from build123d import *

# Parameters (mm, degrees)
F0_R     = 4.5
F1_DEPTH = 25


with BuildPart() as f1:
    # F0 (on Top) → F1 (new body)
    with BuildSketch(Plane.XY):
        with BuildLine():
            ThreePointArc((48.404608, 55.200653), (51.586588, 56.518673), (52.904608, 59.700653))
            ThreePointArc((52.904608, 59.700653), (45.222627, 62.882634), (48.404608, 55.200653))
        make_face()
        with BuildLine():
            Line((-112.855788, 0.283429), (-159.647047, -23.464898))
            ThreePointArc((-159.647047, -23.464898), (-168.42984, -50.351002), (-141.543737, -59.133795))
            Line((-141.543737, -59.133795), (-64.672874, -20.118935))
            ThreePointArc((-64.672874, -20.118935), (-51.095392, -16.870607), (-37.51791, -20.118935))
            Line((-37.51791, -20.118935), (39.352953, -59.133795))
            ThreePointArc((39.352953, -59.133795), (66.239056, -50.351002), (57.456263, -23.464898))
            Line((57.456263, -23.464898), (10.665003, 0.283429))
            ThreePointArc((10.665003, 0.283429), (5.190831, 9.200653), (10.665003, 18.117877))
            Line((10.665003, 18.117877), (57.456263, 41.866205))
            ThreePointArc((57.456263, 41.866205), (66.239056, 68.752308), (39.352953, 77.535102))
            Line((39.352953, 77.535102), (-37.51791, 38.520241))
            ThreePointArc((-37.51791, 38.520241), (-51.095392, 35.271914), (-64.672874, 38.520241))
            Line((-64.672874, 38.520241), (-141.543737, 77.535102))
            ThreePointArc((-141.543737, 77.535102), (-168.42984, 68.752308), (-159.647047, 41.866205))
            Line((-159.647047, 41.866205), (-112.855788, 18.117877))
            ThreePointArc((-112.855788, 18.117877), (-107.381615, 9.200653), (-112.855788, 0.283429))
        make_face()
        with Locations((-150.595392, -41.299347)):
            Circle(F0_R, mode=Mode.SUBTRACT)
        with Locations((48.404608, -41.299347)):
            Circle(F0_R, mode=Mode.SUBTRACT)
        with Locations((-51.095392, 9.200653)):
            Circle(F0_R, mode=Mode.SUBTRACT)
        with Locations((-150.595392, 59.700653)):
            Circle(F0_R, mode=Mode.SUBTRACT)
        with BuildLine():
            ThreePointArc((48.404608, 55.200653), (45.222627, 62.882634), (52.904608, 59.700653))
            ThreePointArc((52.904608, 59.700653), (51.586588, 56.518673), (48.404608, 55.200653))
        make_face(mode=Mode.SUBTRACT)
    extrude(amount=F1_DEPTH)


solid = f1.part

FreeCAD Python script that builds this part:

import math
import FreeCAD as App
import Part
import Sketcher
from FreeCAD import Vector
Q = App.Units.Quantity

doc = App.newDocument("Part")
body = doc.addObject("PartDesign::Body", "Body")

sketch1 = body.newObject("Sketcher::SketchObject", "Sketch")
sketch1.AttachmentSupport = (doc.getObject("XY_Plane"), [""])
sketch1.MapMode = "FlatFace"
sketch1.addGeometry([
    Part.LineSegment(Vector(-112.9, 0.3, 0), Vector(-159.6, -23.5, 0)),
    Part.ArcOfCircle(Part.Circle(Vector(-150.6, -41.3, 0), Vector(0, 0, 1), 20), math.radians(117), math.radians(297)),
    Part.LineSegment(Vector(-141.5, -59.1, 0), Vector(-64.7, -20.1, 0)),
    Part.ArcOfCircle(Part.Circle(Vector(-51.1, -46.9, 0), Vector(0, 0, 1), 30), math.radians(63), math.radians(117)),
    Part.LineSegment(Vector(-37.5, -20.1, 0), Vector(39.4, -59.1, 0)),
    Part.ArcOfCircle(Part.Circle(Vector(48.4, -41.3, 0), Vector(0, 0, 1), 20), math.radians(-117), math.radians(63)),
    Part.LineSegment(Vector(57.5, -23.5, 0), Vector(10.7, 0.3, 0)),
    Part.ArcOfCircle(Part.Circle(Vector(15.2, 9.2, 0), Vector(0, 0, 1), 10), math.radians(117), math.radians(243)),
    Part.LineSegment(Vector(10.7, 18.1, 0), Vector(57.5, 41.9, 0)),
    Part.ArcOfCircle(Part.Circle(Vector(48.4, 59.7, 0), Vector(0, 0, 1), 20), math.radians(-63), math.radians(117)),
    Part.LineSegment(Vector(39.4, 77.5, 0), Vector(-37.5, 38.5, 0)),
    Part.ArcOfCircle(Part.Circle(Vector(-51.1, 65.3, 0), Vector(0, 0, 1), 30), math.radians(-117), math.radians(-63)),
    Part.LineSegment(Vector(-64.7, 38.5, 0), Vector(-141.5, 77.5, 0)),
    Part.ArcOfCircle(Part.Circle(Vector(-150.6, 59.7, 0), Vector(0, 0, 1), 20), math.radians(63), math.radians(243)),
    Part.LineSegment(Vector(-159.6, 41.9, 0), Vector(-112.9, 18.1, 0)),
    Part.ArcOfCircle(Part.Circle(Vector(-117.4, 9.2, 0), Vector(0, 0, 1), 10), math.radians(-63), math.radians(63)),
    Part.Circle(Vector(-150.6, -41.3, 0), Vector(0, 0, 1), 4.5),
    Part.Circle(Vector(-51.1, 9.2, 0), Vector(0, 0, 1), 4.5),
    Part.Circle(Vector(48.4, -41.3, 0), Vector(0, 0, 1), 4.5),
    Part.Circle(Vector(-150.6, 59.7, 0), Vector(0, 0, 1), 4.5),
    Part.ArcOfCircle(Part.Circle(Vector(48.4, 59.7, 0), Vector(0, 0, 1), 4.5), math.radians(-90), math.radians(0)),
    Part.ArcOfCircle(Part.Circle(Vector(48.4, 59.7, 0), Vector(0, 0, 1), 4.5), math.radians(0), math.radians(270)),
], False)
sketch1.addConstraint([
    Sketcher.Constraint("Tangent", 0, 2, 1, 1),
    Sketcher.Constraint("Tangent", 1, 2, 2, 1),
    Sketcher.Constraint("Tangent", 2, 2, 3, 2),
    Sketcher.Constraint("Tangent", 3, 1, 4, 1),
    Sketcher.Constraint("Tangent", 4, 2, 5, 1),
    Sketcher.Constraint("Tangent", 5, 2, 6, 1),
    Sketcher.Constraint("Tangent", 6, 2, 7, 2),
    Sketcher.Constraint("Tangent", 7, 1, 8, 1),
    Sketcher.Constraint("Tangent", 8, 2, 9, 1),
    Sketcher.Constraint("Tangent", 9, 2, 10, 1),
    Sketcher.Constraint("Tangent", 10, 2, 11, 2),
    Sketcher.Constraint("Tangent", 11, 1, 12, 1),
    Sketcher.Constraint("Tangent", 12, 2, 13, 1),
    Sketcher.Constraint("Tangent", 13, 2, 14, 1),
    Sketcher.Constraint("Tangent", 14, 2, 15, 2),
    Sketcher.Constraint("Tangent", 15, 1, 0, 1),
    Sketcher.Constraint("Tangent", 20, 1, 21, 2),
    Sketcher.Constraint("Coincident", 21, 1, 20, 2),
    Sketcher.Constraint("Coincident", 16, 3, 1, 3),
    Sketcher.Constraint("Coincident", 18, 3, 5, 3),
    Sketcher.Constraint("Coincident", 19, 3, 13, 3),
    Sketcher.Constraint("Coincident", 20, 3, 9, 3),
    Sketcher.Constraint("Equal", 1, 5),
    Sketcher.Constraint("Equal", 5, 9),
    Sketcher.Constraint("Equal", 9, 13),
    Sketcher.Constraint("Equal", 7, 15),
    Sketcher.Constraint("Equal", 16, 17),
    Sketcher.Constraint("Equal", 17, 18),
    Sketcher.Constraint("Equal", 18, 19),
    Sketcher.Constraint("Equal", 19, 20),
    Sketcher.Constraint("Parallel", 0, 2),
    Sketcher.Constraint("Parallel", 4, 6),
    Sketcher.Constraint("Parallel", 2, 8),
    Sketcher.Constraint("Parallel", 8, 10),
    Sketcher.Constraint("Parallel", 6, 12),
    Sketcher.Constraint("Parallel", 12, 14),
    Sketcher.Constraint("Horizontal", 1, 3, 5, 3),
    Sketcher.Constraint("Horizontal", 9, 3, 13, 3),
    Sketcher.Constraint("Horizontal", 7, 3, 15, 3),
    Sketcher.Constraint("Horizontal", 15, 3, 17, 3),
    Sketcher.Constraint("Horizontal", 2, 2, 3, 1),
    Sketcher.Constraint("Horizontal", 20, 3, 21, 1),
    Sketcher.Constraint("Vertical", 5, 3, 9, 3),
    Sketcher.Constraint("Vertical", 11, 3, 17, 3),
    Sketcher.Constraint("Vertical", 3, 1, 10, 2),
    Sketcher.Constraint("Vertical", 21, 3, 20, 1),
    Sketcher.Constraint("Diameter", 16, Q("9 mm")),
    Sketcher.Constraint("Radius", 1, Q("20 mm")),
    Sketcher.Constraint("Radius", 7, Q("10 mm")),
    Sketcher.Constraint("DistanceX", 1, 3, 5, 3, Q("199 mm")),
    Sketcher.Constraint("DistanceY", 5, 3, 9, 3, Q("101 mm")),
    Sketcher.Constraint("Radius", 3, Q("29.999996 mm")),
    Sketcher.Constraint("Distance", 6, Q("52.472898 mm")),
    Sketcher.Constraint("DistanceY", 0, 2, -1, 1, Q("23.464898 mm")),
    Sketcher.Constraint("DistanceX", 1, 3, -1, 1, Q("150.595392 mm")),
])
pad1 = body.newObject("PartDesign::Pad", "Pad")
pad1.Profile = sketch1
pad1.Length = 25

doc.recompute()
